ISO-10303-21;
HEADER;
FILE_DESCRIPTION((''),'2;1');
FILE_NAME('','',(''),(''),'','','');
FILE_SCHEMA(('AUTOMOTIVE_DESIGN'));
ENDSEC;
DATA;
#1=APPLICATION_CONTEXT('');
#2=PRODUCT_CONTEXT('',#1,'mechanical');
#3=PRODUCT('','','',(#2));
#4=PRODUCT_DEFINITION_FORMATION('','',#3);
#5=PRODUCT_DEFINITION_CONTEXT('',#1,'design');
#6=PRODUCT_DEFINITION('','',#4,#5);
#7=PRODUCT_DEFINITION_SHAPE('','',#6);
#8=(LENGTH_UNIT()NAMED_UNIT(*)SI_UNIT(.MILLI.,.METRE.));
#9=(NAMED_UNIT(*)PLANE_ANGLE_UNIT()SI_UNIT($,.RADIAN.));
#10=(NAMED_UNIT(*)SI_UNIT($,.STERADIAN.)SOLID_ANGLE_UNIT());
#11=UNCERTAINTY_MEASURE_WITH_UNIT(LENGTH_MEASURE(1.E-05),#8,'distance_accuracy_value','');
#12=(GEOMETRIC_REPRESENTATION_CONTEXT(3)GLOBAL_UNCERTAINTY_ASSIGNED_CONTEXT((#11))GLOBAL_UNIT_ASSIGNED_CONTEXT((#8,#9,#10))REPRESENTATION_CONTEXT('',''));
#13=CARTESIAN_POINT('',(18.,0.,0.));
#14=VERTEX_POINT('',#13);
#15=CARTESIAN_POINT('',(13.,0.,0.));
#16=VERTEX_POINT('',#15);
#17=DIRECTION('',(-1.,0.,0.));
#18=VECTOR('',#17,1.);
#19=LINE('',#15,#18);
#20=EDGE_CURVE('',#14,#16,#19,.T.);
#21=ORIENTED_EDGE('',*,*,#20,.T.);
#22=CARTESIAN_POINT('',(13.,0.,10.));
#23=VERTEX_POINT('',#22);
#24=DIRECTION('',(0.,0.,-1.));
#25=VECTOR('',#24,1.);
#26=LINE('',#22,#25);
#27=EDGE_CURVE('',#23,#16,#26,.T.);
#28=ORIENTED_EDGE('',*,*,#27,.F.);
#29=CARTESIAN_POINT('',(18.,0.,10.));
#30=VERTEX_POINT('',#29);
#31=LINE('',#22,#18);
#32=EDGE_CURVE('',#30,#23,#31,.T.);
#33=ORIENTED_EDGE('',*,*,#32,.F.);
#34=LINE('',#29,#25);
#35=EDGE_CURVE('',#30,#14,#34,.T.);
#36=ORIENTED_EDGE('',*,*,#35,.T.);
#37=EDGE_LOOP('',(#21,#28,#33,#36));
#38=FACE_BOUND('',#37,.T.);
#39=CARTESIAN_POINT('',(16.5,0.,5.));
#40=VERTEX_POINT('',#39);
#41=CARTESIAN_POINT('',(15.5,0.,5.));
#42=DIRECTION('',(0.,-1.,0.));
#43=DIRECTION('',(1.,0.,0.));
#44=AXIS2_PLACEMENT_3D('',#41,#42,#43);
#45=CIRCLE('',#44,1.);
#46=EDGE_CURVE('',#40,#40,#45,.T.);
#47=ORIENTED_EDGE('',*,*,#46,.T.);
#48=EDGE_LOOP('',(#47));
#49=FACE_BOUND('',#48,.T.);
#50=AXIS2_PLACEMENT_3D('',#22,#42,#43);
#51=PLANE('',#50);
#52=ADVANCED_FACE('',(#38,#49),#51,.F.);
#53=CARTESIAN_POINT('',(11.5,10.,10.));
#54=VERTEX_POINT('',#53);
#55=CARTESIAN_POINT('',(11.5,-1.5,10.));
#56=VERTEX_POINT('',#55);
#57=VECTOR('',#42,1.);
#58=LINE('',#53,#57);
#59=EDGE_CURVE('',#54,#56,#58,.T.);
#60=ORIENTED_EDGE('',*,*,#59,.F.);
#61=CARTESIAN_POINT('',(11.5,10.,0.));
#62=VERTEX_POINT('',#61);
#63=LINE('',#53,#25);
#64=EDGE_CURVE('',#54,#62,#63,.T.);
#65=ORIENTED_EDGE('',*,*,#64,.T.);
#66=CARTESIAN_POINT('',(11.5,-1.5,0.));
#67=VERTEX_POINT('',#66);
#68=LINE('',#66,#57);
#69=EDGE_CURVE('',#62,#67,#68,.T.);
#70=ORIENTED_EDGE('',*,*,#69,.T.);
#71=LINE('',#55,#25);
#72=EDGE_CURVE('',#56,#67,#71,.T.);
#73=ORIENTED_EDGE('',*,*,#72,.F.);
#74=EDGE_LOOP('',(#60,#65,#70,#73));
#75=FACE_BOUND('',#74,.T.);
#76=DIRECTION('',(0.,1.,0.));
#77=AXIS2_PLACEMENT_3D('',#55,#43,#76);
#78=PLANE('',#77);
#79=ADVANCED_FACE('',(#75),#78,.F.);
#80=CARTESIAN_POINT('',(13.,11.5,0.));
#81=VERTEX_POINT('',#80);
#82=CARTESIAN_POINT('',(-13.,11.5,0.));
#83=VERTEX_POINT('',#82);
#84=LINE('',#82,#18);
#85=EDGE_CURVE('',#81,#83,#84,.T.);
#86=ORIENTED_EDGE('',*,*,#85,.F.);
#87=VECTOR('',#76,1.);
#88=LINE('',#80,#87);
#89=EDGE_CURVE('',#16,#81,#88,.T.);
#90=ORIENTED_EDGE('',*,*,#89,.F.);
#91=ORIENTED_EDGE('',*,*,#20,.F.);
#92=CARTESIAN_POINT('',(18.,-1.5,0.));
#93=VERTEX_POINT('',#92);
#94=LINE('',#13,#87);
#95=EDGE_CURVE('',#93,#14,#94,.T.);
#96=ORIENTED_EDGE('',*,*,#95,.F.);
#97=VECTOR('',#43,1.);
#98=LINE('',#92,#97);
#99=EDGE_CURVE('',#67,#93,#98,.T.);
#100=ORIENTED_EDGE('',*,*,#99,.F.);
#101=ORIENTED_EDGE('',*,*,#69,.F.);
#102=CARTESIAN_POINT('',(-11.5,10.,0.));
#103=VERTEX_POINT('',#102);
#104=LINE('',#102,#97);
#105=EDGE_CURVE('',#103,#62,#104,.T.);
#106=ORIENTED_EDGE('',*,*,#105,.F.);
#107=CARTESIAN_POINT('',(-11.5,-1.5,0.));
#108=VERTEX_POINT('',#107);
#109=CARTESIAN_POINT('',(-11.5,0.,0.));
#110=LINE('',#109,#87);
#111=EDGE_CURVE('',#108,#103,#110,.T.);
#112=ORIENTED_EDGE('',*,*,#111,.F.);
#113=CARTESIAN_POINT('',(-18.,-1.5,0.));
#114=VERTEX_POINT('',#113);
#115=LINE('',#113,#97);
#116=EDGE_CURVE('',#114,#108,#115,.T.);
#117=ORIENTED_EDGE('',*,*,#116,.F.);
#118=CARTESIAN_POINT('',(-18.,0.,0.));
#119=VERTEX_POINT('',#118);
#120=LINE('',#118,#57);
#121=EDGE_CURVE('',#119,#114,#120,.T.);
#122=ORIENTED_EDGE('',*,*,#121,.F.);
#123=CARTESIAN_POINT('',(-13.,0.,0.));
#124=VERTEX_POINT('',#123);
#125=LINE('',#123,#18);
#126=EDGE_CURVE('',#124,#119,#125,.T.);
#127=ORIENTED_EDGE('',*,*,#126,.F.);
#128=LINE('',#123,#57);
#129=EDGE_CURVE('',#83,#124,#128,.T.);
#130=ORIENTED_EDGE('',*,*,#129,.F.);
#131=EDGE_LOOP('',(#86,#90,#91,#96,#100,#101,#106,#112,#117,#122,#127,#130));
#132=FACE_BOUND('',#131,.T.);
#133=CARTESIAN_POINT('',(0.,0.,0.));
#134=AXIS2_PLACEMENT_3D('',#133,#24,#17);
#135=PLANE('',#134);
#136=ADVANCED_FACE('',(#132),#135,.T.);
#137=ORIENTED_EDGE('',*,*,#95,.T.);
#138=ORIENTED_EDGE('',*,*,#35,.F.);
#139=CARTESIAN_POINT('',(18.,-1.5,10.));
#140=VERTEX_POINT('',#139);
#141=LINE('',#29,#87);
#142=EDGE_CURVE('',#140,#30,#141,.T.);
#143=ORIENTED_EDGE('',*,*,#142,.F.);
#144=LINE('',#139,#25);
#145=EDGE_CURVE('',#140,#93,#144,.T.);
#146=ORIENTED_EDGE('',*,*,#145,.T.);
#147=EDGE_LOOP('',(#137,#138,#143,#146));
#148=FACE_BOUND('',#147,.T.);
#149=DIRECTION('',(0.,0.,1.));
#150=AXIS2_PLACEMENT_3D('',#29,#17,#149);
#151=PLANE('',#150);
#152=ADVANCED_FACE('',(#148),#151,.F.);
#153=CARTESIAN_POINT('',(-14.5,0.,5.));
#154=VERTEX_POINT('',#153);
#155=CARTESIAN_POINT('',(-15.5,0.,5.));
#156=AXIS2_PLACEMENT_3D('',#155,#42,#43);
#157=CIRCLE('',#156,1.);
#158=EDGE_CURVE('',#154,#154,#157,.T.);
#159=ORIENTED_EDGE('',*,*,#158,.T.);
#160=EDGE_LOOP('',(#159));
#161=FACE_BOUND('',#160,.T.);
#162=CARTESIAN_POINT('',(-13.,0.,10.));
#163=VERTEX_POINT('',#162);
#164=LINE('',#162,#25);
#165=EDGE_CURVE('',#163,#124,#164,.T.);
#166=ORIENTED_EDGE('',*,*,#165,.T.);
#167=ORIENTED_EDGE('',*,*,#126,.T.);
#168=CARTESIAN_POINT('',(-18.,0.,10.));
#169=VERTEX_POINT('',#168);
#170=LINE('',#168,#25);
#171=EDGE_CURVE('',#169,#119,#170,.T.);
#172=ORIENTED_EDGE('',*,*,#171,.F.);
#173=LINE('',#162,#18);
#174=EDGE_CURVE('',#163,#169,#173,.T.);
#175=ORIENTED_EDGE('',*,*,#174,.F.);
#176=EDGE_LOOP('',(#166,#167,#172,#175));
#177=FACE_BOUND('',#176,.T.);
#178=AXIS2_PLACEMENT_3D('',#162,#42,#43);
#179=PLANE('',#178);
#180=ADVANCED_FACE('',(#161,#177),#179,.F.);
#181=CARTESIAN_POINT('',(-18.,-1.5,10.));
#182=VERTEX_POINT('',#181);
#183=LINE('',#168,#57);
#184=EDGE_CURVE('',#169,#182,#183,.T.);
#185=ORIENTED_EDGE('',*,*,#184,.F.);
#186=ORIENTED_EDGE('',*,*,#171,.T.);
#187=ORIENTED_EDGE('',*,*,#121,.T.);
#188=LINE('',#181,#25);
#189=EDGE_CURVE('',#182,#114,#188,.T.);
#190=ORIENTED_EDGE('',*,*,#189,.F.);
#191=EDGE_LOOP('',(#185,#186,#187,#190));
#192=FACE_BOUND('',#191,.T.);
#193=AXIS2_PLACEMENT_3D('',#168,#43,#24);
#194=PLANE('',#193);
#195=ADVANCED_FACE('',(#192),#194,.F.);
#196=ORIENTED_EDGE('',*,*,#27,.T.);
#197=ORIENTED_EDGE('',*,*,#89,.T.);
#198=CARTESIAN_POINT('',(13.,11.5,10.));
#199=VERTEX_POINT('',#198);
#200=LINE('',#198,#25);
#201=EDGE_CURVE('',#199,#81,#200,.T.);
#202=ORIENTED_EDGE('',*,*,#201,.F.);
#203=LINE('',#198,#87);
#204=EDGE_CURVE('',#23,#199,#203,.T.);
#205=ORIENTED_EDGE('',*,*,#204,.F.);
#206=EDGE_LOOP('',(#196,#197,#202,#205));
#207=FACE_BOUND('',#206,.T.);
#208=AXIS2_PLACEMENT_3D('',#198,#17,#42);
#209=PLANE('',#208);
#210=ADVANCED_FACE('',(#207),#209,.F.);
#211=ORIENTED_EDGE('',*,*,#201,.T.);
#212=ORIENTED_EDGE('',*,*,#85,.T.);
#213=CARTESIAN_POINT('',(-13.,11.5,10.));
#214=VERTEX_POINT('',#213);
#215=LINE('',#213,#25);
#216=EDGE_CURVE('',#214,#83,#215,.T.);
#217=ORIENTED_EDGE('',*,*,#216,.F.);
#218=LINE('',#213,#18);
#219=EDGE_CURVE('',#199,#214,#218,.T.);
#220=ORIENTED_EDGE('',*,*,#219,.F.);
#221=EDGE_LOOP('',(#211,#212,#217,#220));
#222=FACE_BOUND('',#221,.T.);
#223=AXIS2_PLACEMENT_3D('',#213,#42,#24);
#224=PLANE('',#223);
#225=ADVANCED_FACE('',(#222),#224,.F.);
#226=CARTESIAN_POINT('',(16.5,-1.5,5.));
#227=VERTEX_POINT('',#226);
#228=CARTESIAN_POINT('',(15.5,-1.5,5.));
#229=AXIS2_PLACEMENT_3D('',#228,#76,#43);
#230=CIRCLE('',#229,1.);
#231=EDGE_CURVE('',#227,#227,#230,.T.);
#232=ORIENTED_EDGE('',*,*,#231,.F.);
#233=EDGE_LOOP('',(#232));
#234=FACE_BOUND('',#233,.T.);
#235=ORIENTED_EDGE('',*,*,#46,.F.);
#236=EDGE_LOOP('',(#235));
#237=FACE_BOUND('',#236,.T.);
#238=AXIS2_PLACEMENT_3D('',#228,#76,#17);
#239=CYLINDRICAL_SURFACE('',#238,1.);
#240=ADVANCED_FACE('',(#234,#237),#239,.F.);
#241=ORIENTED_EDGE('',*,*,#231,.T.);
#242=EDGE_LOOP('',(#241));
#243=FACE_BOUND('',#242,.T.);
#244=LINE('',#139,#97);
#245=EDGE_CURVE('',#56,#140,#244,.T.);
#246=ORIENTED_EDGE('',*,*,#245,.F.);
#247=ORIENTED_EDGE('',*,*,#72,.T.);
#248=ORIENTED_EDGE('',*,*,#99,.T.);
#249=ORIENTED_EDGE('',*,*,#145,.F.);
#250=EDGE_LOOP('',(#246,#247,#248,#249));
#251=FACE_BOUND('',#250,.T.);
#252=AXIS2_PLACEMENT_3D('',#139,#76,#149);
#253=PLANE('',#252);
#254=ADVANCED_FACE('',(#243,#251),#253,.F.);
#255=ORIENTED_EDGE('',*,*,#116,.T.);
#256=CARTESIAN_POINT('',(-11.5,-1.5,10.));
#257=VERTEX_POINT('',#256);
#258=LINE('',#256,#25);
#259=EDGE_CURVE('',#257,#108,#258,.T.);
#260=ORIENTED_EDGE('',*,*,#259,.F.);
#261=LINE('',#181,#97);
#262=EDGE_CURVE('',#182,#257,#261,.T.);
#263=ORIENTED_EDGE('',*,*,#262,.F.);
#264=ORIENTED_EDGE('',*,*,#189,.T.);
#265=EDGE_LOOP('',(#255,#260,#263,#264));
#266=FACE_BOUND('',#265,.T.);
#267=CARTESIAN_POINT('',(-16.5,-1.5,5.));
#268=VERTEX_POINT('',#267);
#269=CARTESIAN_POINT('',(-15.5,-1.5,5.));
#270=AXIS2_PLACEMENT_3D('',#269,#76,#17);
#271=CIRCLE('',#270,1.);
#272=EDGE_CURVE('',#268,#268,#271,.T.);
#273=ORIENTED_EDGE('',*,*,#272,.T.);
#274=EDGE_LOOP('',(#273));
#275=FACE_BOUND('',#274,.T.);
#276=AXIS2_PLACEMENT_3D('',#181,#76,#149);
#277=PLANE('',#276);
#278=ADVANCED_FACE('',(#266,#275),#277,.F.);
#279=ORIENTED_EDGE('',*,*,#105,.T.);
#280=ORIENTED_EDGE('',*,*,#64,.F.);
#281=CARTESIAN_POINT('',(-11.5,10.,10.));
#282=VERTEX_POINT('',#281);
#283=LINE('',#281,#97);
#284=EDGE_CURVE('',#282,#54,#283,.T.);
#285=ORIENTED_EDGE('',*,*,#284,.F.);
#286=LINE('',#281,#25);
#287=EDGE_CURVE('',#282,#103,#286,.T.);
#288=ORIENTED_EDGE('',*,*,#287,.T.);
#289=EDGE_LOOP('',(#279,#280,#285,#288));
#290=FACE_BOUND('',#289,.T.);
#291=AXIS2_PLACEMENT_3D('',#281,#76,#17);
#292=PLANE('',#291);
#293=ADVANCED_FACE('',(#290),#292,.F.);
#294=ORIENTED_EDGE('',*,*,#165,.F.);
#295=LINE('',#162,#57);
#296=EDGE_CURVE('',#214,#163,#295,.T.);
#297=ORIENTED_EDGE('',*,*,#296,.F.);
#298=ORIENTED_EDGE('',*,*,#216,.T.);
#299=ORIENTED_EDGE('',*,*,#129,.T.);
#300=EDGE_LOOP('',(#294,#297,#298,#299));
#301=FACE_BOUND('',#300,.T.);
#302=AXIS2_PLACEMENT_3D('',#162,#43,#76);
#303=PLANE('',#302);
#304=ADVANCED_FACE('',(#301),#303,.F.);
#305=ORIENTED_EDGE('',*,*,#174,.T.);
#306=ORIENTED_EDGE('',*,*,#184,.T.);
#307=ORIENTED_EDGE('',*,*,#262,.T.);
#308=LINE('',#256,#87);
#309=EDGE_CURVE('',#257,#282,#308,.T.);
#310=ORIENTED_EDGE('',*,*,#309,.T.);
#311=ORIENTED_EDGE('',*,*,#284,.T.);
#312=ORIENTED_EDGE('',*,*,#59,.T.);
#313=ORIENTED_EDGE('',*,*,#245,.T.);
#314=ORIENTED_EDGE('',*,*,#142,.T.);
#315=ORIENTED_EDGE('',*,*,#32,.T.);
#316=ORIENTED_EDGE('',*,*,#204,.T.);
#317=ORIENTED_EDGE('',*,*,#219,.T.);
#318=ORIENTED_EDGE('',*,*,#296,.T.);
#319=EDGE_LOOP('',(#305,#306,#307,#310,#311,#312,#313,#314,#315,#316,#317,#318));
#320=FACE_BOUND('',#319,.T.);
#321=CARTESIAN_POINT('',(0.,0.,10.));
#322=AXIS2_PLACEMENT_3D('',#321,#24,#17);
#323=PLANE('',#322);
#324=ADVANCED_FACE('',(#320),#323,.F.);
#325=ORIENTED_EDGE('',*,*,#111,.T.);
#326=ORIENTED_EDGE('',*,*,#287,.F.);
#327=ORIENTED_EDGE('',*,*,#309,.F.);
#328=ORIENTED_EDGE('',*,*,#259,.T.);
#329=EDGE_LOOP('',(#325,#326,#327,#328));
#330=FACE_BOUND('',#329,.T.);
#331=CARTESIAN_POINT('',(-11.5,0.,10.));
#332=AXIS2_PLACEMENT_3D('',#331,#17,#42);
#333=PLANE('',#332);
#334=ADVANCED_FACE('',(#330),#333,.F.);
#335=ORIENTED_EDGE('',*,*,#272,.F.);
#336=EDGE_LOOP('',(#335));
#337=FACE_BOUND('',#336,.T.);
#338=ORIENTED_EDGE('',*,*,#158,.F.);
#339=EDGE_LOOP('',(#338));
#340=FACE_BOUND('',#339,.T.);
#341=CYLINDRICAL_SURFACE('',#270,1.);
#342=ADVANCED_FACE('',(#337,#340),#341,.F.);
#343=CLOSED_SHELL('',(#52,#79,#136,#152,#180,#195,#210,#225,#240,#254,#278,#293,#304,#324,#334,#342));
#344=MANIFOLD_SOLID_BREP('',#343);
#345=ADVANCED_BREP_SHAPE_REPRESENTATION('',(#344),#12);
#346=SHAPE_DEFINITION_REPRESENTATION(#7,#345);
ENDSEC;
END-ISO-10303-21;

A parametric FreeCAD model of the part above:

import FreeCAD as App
import Part
import Sketcher

V = App.Vector


def add_polygon(sketch, points):
    """Adds a closed chain of lines whose ends are joined by coincident constraints."""
    first, n = sketch.GeometryCount, len(points)
    for a, b in zip(points, points[1:] + points[:1]):
        sketch.addGeometry(Part.LineSegment(App.Vector(*a, 0), App.Vector(*b, 0)), False)
    for i in range(n):
        sketch.addConstraint(Sketcher.Constraint("Coincident", first + i, 2, first + (i + 1) % n, 1))

doc = App.newDocument("Part")
body = doc.addObject("PartDesign::Body", "Body")

# Sketch on XY plane
sketch1 = body.newObject("Sketcher::SketchObject", "Sketch")
sketch1.AttachmentSupport = (doc.getObject("XY_Plane"), [""])
sketch1.MapMode = "FlatFace"
add_polygon(sketch1, [(-11.5, 10), (11.5, 10), (11.5, -1.5), (18, -1.5), (18, 0), (13, 0), (13, 11.5), (-13, 11.5), (-13, 0), (-18, 0), (-18, -1.5), (-11.5, -1.5)])  # lines 0-11
sketch1.addConstraint(Sketcher.Constraint("Horizontal", 0))
sketch1.addConstraint(Sketcher.Constraint("Vertical", 1))
sketch1.addConstraint(Sketcher.Constraint("Horizontal", 2))
sketch1.addConstraint(Sketcher.Constraint("Vertical", 3))
sketch1.addConstraint(Sketcher.Constraint("Horizontal", 4))
sketch1.addConstraint(Sketcher.Constraint("Vertical", 5))
sketch1.addConstraint(Sketcher.Constraint("Horizontal", 6))
sketch1.addConstraint(Sketcher.Constraint("Vertical", 7))
sketch1.addConstraint(Sketcher.Constraint("Horizontal", 8))
sketch1.addConstraint(Sketcher.Constraint("Vertical", 9))
sketch1.addConstraint(Sketcher.Constraint("Horizontal", 10))
sketch1.addConstraint(Sketcher.Constraint("Vertical", 11))
sketch1.addConstraint(Sketcher.Constraint("Symmetric", 4, 2, 7, 2, -1, 1))
sketch1.addConstraint(Sketcher.Constraint("Symmetric", 3, 2, 8, 2, -2))
sketch1.addConstraint(Sketcher.Constraint("Symmetric", 1, 2, 10, 2, -2))
sketch1.addConstraint(Sketcher.Constraint("Equal", 1, 5))
sketch1.addConstraint(Sketcher.Constraint("DistanceX", 0, 1, 0, 2, 23.0))
sketch1.addConstraint(Sketcher.Constraint("DistanceX", 4, 2, 4, 1, 5.0))
sketch1.addConstraint(Sketcher.Constraint("DistanceX", 6, 2, 6, 1, 26.0))
sketch1.addConstraint(Sketcher.Constraint("DistanceY", 1, 2, 1, 1, 11.5))
sketch1.addConstraint(Sketcher.Constraint("DistanceY", 3, 1, 3, 2, 1.5))
pad1 = body.newObject("PartDesign::Pad", "Pad")
pad1.Profile = sketch1
pad1.Length = 10

# Sketch on XZ plane
sketch2 = body.newObject("Sketcher::SketchObject", "Sketch001")
sketch2.AttachmentSupport = (doc.getObject("XZ_Plane"), [""])
sketch2.MapMode = "FlatFace"
sketch2.addGeometry(Part.Circle(V(-15.5, 5, 0), V(0, 0, 1), 1), False)
sketch2.addGeometry(Part.Circle(V(15.5, 5, 0), V(0, 0, 1), 1), False)
sketch2.addConstraint(Sketcher.Constraint("Equal", 0, 1))
sketch2.addConstraint(Sketcher.Constraint("Symmetric", 0, 3, 1, 3, -2))
sketch2.addConstraint(Sketcher.Constraint("Diameter", 0, 2.0))
sketch2.addConstraint(Sketcher.Constraint("DistanceY", -1, 1, 0, 3, 5.0))
sketch2.addConstraint(Sketcher.Constraint("DistanceX", 0, 3, 1, 3, 31.0))
pocket1 = body.newObject("PartDesign::Pocket", "Pocket")
pocket1.Profile = sketch2
pocket1.Type = "ThroughAll"
pocket1.Midplane = True

doc.recompute()
